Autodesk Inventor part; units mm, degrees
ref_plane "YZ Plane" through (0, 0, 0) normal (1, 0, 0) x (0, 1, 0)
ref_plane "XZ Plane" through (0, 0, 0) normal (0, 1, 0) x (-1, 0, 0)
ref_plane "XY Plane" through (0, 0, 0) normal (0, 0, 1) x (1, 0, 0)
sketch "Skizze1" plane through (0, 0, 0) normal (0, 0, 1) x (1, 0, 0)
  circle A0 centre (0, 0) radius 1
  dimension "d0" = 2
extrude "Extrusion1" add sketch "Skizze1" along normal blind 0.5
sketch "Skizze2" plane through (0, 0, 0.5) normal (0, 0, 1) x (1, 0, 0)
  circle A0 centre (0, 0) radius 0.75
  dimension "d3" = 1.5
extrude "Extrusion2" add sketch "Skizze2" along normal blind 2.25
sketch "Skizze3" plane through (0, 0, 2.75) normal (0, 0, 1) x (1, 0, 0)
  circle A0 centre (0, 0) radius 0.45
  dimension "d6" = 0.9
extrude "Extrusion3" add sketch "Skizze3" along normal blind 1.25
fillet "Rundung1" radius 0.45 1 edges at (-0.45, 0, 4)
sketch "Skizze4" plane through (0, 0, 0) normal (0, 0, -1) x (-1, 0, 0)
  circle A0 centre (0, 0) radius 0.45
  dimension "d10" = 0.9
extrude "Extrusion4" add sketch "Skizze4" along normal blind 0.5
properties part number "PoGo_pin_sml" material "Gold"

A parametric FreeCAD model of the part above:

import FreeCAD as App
import Part
import Sketcher

V = App.Vector


def edges_at(feature, points):
    """Names of the edges that pass closest to the given points."""
    edges = feature.Shape.Edges
    near = lambda p: min(range(len(edges)), key=lambda i: edges[i].distToShape(Part.Vertex(*p))[0])
    return sorted({f"Edge{near(p) + 1}" for p in points})

doc = App.newDocument("Part")
params = doc.addObject("Spreadsheet::Sheet", "Params")
for row, (alias, value) in enumerate([
    ("sketch1_diameter", "2 mm"),
    ("pad1_length", "0.5 mm"),
    ("sketch2_diameter", "1.5 mm"),
    ("pad2_length", "2.25 mm"),
    ("sketch3_diameter", "0.9 mm"),
    ("pad3_length", "1.25 mm"),
    ("fillet_radius", "0.45 mm"),
    ("sketch4_diameter", "0.9 mm"),
    ("pad4_length", "0.5 mm"),
], start=1):
    params.set(f"A{row}", alias)
    params.set(f"B{row}", "=" + value)
    params.setAlias(f"B{row}", alias)

body = doc.addObject("PartDesign::Body", "Body")

# Sketch on XY plane
sketch1 = doc.addObject("Sketcher::SketchObject", "Sketch")
body.addObject(sketch1)
sketch1.AttachmentSupport = (doc.XY_Plane, [""])
sketch1.MapMode = "FlatFace"
sketch1.addGeometry(Part.Circle(V(0, 0, 0), V(0, 0, 1), 1), False)
sketch1.addConstraint([
    Sketcher.Constraint("Coincident", 0, 3, -1, 1),
    Sketcher.Constraint("Diameter", 0, 2.0),
])
sketch1.setExpression("Constraints[1]", "Params.sketch1_diameter")
pad1 = doc.addObject("PartDesign::Pad", "Pad")
body.addObject(pad1)
pad1.Profile = sketch1
pad1.setExpression("Length", "Params.pad1_length")

# Sketch on XY plane
sketch2 = doc.addObject("Sketcher::SketchObject", "Sketch001")
body.addObject(sketch2)
sketch2.AttachmentSupport = (doc.XY_Plane, [""])
sketch2.MapMode = "FlatFace"
sketch2.AttachmentOffset = App.Placement(V(0, 0, 0.5), App.Rotation())
sketch2.addGeometry(Part.Circle(V(0, 0, 0), V(0, 0, 1), 0.75), False)
sketch2.addConstraint([
    Sketcher.Constraint("Coincident", 0, 3, -1, 1),
    Sketcher.Constraint("Diameter", 0, 1.5),
])
sketch2.setExpression("Constraints[1]", "Params.sketch2_diameter")
pad2 = doc.addObject("PartDesign::Pad", "Pad001")
body.addObject(pad2)
pad2.Profile = sketch2
pad2.setExpression("Length", "Params.pad2_length")

# Sketch on XY plane
sketch3 = doc.addObject("Sketcher::SketchObject", "Sketch002")
body.addObject(sketch3)
sketch3.AttachmentSupport = (doc.XY_Plane, [""])
sketch3.MapMode = "FlatFace"
sketch3.AttachmentOffset = App.Placement(V(0, 0, 2.75), App.Rotation())
sketch3.addGeometry(Part.Circle(V(0, 0, 0), V(0, 0, 1), 0.45), False)
sketch3.addConstraint([
    Sketcher.Constraint("Coincident", 0, 3, -1, 1),
    Sketcher.Constraint("Diameter", 0, 0.9),
])
sketch3.setExpression("Constraints[1]", "Params.sketch3_diameter")
pad3 = doc.addObject("PartDesign::Pad", "Pad002")
body.addObject(pad3)
pad3.Profile = sketch3
pad3.setExpression("Length", "Params.pad3_length")
doc.recompute()

fillet = doc.addObject("PartDesign::Fillet", "Fillet")
body.addObject(fillet)
fillet.Base = (pad3, edges_at(pad3, [(-0.45, 0, 4)]))
fillet.setExpression("Radius", "Params.fillet_radius")

# Sketch on XY plane
sketch4 = doc.addObject("Sketcher::SketchObject", "Sketch003")
body.addObject(sketch4)
sketch4.AttachmentSupport = (doc.XY_Plane, [""])
sketch4.MapMode = "FlatFace"
sketch4.addGeometry(Part.Circle(V(0, 0, 0), V(0, 0, 1), 0.45), False)
sketch4.addConstraint([
    Sketcher.Constraint("Coincident", 0, 3, -1, 1),
    Sketcher.Constraint("Diameter", 0, 0.9),
])
sketch4.setExpression("Constraints[1]", "Params.sketch4_diameter")
pad4 = doc.addObject("PartDesign::Pad", "Pad003")
body.addObject(pad4)
pad4.Profile = sketch4
pad4.setExpression("Length", "Params.pad4_length")
pad4.Reversed = True

doc.recompute()
